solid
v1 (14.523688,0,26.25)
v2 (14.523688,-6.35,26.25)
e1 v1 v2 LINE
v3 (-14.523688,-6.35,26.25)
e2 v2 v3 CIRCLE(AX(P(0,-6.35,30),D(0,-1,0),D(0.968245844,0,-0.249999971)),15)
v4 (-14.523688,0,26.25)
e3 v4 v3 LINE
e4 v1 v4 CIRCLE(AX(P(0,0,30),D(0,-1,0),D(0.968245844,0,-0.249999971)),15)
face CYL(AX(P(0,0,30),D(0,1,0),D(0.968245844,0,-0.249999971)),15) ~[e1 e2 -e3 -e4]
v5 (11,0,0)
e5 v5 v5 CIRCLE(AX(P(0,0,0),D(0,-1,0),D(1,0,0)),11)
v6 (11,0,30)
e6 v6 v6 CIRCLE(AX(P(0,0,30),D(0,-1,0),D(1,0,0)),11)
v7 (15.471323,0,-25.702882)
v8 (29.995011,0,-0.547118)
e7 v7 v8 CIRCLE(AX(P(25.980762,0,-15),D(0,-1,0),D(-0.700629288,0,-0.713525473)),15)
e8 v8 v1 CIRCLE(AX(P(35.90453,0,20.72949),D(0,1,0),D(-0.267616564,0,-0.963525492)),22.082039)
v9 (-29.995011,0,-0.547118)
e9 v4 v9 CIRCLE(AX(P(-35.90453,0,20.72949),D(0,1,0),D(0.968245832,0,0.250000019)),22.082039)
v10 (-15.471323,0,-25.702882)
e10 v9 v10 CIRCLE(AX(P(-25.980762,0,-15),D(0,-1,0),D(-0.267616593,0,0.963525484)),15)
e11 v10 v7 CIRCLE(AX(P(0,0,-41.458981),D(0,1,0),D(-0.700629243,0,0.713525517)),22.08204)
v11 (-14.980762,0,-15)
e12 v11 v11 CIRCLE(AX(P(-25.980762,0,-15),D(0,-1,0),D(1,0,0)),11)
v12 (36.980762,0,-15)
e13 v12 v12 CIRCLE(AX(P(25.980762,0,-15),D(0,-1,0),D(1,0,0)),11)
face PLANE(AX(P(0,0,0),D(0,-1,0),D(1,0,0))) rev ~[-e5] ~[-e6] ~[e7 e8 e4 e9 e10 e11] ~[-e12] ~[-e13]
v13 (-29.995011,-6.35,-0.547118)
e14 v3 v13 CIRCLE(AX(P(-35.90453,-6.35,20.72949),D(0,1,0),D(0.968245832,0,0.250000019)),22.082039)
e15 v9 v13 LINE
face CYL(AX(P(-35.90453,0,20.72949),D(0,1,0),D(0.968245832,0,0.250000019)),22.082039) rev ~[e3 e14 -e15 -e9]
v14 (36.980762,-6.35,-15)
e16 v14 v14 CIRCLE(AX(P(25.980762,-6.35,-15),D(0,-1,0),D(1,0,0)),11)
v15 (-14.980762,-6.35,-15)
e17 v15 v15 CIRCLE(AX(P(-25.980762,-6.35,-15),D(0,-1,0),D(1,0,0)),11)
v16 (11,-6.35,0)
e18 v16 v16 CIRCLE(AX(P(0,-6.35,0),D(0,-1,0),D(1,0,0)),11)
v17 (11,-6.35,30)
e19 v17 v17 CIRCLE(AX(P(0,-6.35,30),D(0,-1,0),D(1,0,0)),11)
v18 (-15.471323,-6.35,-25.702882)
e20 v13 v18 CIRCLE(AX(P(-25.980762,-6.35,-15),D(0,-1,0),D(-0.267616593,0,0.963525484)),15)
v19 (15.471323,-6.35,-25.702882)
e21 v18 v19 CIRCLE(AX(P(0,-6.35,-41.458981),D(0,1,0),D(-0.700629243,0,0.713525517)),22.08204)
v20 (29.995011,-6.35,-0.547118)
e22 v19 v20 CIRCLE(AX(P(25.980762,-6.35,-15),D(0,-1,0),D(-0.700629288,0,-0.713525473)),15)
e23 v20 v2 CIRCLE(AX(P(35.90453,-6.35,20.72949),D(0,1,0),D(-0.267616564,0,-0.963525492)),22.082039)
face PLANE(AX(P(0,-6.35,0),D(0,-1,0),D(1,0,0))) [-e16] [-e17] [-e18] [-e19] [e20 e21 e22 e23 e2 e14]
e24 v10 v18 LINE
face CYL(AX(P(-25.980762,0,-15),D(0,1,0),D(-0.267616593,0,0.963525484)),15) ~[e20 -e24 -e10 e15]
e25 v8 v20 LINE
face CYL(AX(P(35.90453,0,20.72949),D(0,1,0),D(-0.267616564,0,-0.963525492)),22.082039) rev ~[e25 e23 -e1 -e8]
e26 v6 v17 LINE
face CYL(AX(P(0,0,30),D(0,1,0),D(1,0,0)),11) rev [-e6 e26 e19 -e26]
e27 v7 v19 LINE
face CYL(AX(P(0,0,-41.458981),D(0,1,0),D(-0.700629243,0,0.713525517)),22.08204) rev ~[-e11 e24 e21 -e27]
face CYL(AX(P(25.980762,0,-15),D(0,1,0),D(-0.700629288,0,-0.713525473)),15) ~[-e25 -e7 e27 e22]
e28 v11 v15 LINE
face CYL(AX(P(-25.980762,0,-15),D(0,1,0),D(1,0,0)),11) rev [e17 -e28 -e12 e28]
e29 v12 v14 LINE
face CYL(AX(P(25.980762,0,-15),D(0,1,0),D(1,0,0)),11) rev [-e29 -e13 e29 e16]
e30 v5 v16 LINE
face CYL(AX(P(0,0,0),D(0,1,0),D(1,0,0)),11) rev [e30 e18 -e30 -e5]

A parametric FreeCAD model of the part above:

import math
import FreeCAD as App
import Part
import Sketcher
Q = App.Units.Quantity

doc = App.newDocument("Part")
body = doc.addObject("PartDesign::Body", "Body")

# Sketch on XZ plane
sketch1 = doc.addObject("Sketcher::SketchObject", "Sketch")
body.addObject(sketch1)
sketch1.AttachmentSupport = (doc.XZ_Plane, [""])
sketch1.MapMode = "FlatFace"
sketch1.addGeometry([
    Part.ArcOfCircle(Part.Circle(App.Vector(36, 21, 0), App.Vector(0, 0, 1), 22), math.radians(166), math.radians(254)),  # 0
    Part.ArcOfCircle(Part.Circle(App.Vector(0, 30, 0), App.Vector(0, 0, 1), 15), math.radians(-14), math.radians(194)),  # 1
    Part.ArcOfCircle(Part.Circle(App.Vector(-36, 21, 0), App.Vector(0, 0, 1), 22), math.radians(-74), math.radians(14)),  # 2
    Part.ArcOfCircle(Part.Circle(App.Vector(-26, -15, 0), App.Vector(0, 0, 1), 15), math.radians(106), math.radians(314)),  # 3
    Part.ArcOfCircle(Part.Circle(App.Vector(0, -41, 0), App.Vector(0, 0, 1), 22), math.radians(46), math.radians(134)),  # 4
    Part.ArcOfCircle(Part.Circle(App.Vector(26, -15, 0), App.Vector(0, 0, 1), 15), math.radians(-134), math.radians(74)),  # 5
    Part.Circle(App.Vector(-26, -15, 0), App.Vector(0, 0, 1), 11),  # 6
    Part.Circle(App.Vector(26, -15, 0), App.Vector(0, 0, 1), 11),  # 7
    Part.Circle(App.Vector(0, 0, 0), App.Vector(0, 0, 1), 11),  # 8
    Part.Circle(App.Vector(0, 30, 0), App.Vector(0, 0, 1), 11),  # 9
], False)
sketch1.addConstraint([
    Sketcher.Constraint("Tangent", 0, 1, 1, 1),
    Sketcher.Constraint("Tangent", 1, 2, 2, 2),
    Sketcher.Constraint("Tangent", 2, 1, 3, 1),
    Sketcher.Constraint("Tangent", 3, 2, 4, 2),
    Sketcher.Constraint("Tangent", 4, 1, 5, 1),
    Sketcher.Constraint("Tangent", 5, 2, 0, 2),
    Sketcher.Constraint("Coincident", 8, 3, -1, 1),
    Sketcher.Constraint("Coincident", 6, 3, 3, 3),
    Sketcher.Constraint("Coincident", 7, 3, 5, 3),
    Sketcher.Constraint("Coincident", 9, 3, 1, 3),
    Sketcher.Constraint("Equal", 0, 2),
    Sketcher.Constraint("Equal", 1, 3),
    Sketcher.Constraint("Equal", 2, 4),
    Sketcher.Constraint("Equal", 3, 5),
    Sketcher.Constraint("Equal", 6, 7),
    Sketcher.Constraint("Equal", 7, 8),
    Sketcher.Constraint("Equal", 8, 9),
    Sketcher.Constraint("Symmetric", 0, 3, 2, 3, -2),
    Sketcher.Constraint("PointOnObject", 4, 3, -2),
    Sketcher.Constraint("Diameter", 6, Q("22 mm")),
    Sketcher.Constraint("Radius", 1, Q("15 mm")),
    Sketcher.Constraint("DistanceY", -1, 1, 1, 3, Q("30 mm")),
    Sketcher.Constraint("DistanceY", 3, 3, -1, 1, Q("15 mm")),
    Sketcher.Constraint("DistanceY", -1, 1, 0, 1, Q("26.25 mm")),
    Sketcher.Constraint("Radius", 0, Q("22.082039 mm")),
])
pad1 = doc.addObject("PartDesign::Pad", "Pad")
body.addObject(pad1)
pad1.Profile = sketch1
pad1.Length = 6.35

doc.recompute()
